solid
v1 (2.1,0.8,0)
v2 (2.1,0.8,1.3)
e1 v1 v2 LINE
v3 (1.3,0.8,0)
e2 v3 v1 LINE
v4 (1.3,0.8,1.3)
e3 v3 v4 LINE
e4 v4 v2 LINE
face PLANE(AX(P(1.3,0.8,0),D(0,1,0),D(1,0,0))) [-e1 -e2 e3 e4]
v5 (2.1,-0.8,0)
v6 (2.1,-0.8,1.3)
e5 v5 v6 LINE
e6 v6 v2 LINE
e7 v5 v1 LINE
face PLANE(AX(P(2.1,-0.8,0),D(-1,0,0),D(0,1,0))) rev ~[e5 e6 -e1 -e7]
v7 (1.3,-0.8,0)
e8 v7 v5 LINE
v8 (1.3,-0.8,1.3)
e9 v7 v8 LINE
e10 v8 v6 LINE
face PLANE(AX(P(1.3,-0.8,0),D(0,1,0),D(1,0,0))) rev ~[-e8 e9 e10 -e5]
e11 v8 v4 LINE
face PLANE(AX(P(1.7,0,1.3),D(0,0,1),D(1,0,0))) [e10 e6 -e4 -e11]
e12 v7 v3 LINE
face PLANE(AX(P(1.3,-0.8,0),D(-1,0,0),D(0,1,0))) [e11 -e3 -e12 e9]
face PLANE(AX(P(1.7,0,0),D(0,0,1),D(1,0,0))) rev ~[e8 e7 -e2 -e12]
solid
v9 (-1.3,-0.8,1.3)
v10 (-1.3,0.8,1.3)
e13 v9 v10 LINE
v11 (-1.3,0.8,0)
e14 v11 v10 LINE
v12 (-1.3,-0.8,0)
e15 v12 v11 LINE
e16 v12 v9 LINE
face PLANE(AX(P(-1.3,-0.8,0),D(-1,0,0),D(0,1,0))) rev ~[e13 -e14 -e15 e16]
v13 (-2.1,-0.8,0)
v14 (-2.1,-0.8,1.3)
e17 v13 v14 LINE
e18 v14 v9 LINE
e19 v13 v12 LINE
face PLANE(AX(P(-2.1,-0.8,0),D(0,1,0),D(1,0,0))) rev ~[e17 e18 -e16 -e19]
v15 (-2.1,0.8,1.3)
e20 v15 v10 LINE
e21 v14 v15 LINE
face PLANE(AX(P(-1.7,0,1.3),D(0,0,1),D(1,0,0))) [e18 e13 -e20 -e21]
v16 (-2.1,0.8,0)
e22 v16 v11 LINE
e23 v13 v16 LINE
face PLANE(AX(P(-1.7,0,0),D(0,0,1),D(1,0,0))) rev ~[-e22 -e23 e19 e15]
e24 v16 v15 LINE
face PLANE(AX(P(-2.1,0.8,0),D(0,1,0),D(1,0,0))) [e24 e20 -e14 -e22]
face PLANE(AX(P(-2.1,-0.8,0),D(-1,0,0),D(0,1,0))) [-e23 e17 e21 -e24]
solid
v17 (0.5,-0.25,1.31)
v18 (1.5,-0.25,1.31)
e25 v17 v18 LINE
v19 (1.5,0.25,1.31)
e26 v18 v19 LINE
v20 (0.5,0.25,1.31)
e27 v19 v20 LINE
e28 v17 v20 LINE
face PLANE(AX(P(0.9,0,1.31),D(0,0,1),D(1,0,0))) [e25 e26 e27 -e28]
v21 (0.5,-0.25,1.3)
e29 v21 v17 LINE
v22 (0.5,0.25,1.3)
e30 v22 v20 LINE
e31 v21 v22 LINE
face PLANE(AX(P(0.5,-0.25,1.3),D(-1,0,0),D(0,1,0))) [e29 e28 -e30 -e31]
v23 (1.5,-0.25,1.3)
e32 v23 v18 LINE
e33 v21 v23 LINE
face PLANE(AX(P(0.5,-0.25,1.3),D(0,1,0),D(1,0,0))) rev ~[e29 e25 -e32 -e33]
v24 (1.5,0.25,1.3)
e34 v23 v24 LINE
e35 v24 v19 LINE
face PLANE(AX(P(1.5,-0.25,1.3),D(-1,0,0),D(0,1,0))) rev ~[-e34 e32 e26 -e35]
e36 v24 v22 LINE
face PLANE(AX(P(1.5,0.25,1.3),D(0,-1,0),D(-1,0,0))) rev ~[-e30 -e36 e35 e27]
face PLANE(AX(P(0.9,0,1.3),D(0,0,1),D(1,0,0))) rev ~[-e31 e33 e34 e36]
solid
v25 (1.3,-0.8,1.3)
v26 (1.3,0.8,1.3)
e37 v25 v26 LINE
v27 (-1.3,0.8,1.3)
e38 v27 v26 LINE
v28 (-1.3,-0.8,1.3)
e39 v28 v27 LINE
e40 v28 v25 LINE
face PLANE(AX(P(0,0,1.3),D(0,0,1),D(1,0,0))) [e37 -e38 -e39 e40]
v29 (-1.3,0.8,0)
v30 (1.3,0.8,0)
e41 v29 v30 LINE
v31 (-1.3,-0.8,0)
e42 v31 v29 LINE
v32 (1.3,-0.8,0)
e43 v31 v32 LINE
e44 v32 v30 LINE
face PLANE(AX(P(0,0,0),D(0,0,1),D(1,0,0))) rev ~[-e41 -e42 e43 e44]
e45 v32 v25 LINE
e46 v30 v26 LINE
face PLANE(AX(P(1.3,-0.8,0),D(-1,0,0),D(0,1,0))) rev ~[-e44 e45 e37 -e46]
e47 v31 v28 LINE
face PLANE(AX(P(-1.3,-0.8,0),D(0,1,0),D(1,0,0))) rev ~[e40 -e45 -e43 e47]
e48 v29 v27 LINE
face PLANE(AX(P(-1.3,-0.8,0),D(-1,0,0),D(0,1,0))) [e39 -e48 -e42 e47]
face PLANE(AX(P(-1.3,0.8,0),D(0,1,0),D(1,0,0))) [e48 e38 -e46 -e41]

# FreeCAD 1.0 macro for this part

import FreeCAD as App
import Part
import Sketcher
Q = App.Units.Quantity

doc = App.newDocument("Part")
body = doc.addObject("PartDesign::Body", "Body")

# Sketch on XY plane
sketch1 = body.newObject("Sketcher::SketchObject", "Sketch")
sketch1.AttachmentSupport = (doc.getObject("XY_Plane"), [""])
sketch1.MapMode = "FlatFace"
sketch1.addGeometry(Part.LineSegment(App.Vector(1.3, 0.8, 0), App.Vector(1.3, -0.8, 0)), False)
sketch1.addGeometry(Part.LineSegment(App.Vector(1.3, -0.8, 0), App.Vector(2.1, -0.8, 0)), False)
sketch1.addGeometry(Part.LineSegment(App.Vector(2.1, -0.8, 0), App.Vector(2.1, 0.8, 0)), False)
sketch1.addGeometry(Part.LineSegment(App.Vector(2.1, 0.8, 0), App.Vector(1.3, 0.8, 0)), False)
sketch1.addConstraint(Sketcher.Constraint("Coincident", 0, 2, 1, 1))
sketch1.addConstraint(Sketcher.Constraint("Coincident", 1, 2, 2, 1))
sketch1.addConstraint(Sketcher.Constraint("Coincident", 2, 2, 3, 1))
sketch1.addConstraint(Sketcher.Constraint("Coincident", 3, 2, 0, 1))
sketch1.addConstraint(Sketcher.Constraint("Vertical", 0))
sketch1.addConstraint(Sketcher.Constraint("Horizontal", 1))
sketch1.addConstraint(Sketcher.Constraint("Vertical", 2))
sketch1.addConstraint(Sketcher.Constraint("Horizontal", 3))
sketch1.addConstraint(Sketcher.Constraint("DistanceX", 1, 1, 1, 2, Q("0.8 mm")))
sketch1.addConstraint(Sketcher.Constraint("DistanceY", 0, 2, 0, 1, Q("1.6 mm")))
sketch1.addConstraint(Sketcher.Constraint("DistanceX", -1, 1, 0, 2, Q("1.3 mm")))
sketch1.addConstraint(Sketcher.Constraint("DistanceY", 0, 2, -1, 1, Q("0.8 mm")))
pad1 = body.newObject("PartDesign::Pad", "Pad")
pad1.Profile = sketch1
pad1.Length = 1.3
body2 = doc.addObject("PartDesign::Body", "Body001")

# Sketch on XY plane
sketch2 = body2.newObject("Sketcher::SketchObject", "Sketch001")
sketch2.AttachmentSupport = (doc.getObject("XY_Plane001"), [""])
sketch2.MapMode = "FlatFace"
sketch2.addGeometry(Part.LineSegment(App.Vector(-2.1, 0.8, 0), App.Vector(-2.1, -0.8, 0)), False)
sketch2.addGeometry(Part.LineSegment(App.Vector(-2.1, -0.8, 0), App.Vector(-1.3, -0.8, 0)), False)
sketch2.addGeometry(Part.LineSegment(App.Vector(-1.3, -0.8, 0), App.Vector(-1.3, 0.8, 0)), False)
sketch2.addGeometry(Part.LineSegment(App.Vector(-1.3, 0.8, 0), App.Vector(-2.1, 0.8, 0)), False)
sketch2.addConstraint(Sketcher.Constraint("Coincident", 0, 2, 1, 1))
sketch2.addConstraint(Sketcher.Constraint("Coincident", 1, 2, 2, 1))
sketch2.addConstraint(Sketcher.Constraint("Coincident", 2, 2, 3, 1))
sketch2.addConstraint(Sketcher.Constraint("Coincident", 3, 2, 0, 1))
sketch2.addConstraint(Sketcher.Constraint("Vertical", 0))
sketch2.addConstraint(Sketcher.Constraint("Horizontal", 1))
sketch2.addConstraint(Sketcher.Constraint("Vertical", 2))
sketch2.addConstraint(Sketcher.Constraint("Horizontal", 3))
sketch2.addConstraint(Sketcher.Constraint("DistanceX", 1, 1, 1, 2, Q("0.8 mm")))
sketch2.addConstraint(Sketcher.Constraint("DistanceY", 0, 2, 0, 1, Q("1.6 mm")))
sketch2.addConstraint(Sketcher.Constraint("DistanceX", 0, 2, -1, 1, Q("2.1 mm")))
sketch2.addConstraint(Sketcher.Constraint("DistanceY", 0, 2, -1, 1, Q("0.8 mm")))
pad2 = body2.newObject("PartDesign::Pad", "Pad001")
pad2.Profile = sketch2
pad2.Length = 1.3
body3 = doc.addObject("PartDesign::Body", "Body002")

# Sketch on XY plane
sketch3 = body3.newObject("Sketcher::SketchObject", "Sketch002")
sketch3.AttachmentSupport = (doc.getObject("XY_Plane002"), [""])
sketch3.MapMode = "FlatFace"
sketch3.addGeometry(Part.LineSegment(App.Vector(-1.3, 0.8, 0), App.Vector(-1.3, -0.8, 0)), False)
sketch3.addGeometry(Part.LineSegment(App.Vector(-1.3, -0.8, 0), App.Vector(1.3, -0.8, 0)), False)
sketch3.addGeometry(Part.LineSegment(App.Vector(1.3, -0.8, 0), App.Vector(1.3, 0.8, 0)), False)
sketch3.addGeometry(Part.LineSegment(App.Vector(1.3, 0.8, 0), App.Vector(-1.3, 0.8, 0)), False)
sketch3.addConstraint(Sketcher.Constraint("Coincident", 0, 2, 1, 1))
sketch3.addConstraint(Sketcher.Constraint("Coincident", 1, 2, 2, 1))
sketch3.addConstraint(Sketcher.Constraint("Coincident", 2, 2, 3, 1))
sketch3.addConstraint(Sketcher.Constraint("Coincident", 3, 2, 0, 1))
sketch3.addConstraint(Sketcher.Constraint("Vertical", 0))
sketch3.addConstraint(Sketcher.Constraint("Horizontal", 1))
sketch3.addConstraint(Sketcher.Constraint("Vertical", 2))
sketch3.addConstraint(Sketcher.Constraint("Horizontal", 3))
sketch3.addConstraint(Sketcher.Constraint("Symmetric", 0, 2, 2, 2, -1, 1))
sketch3.addConstraint(Sketcher.Constraint("DistanceX", 1, 1, 1, 2, Q("2.6 mm")))
sketch3.addConstraint(Sketcher.Constraint("DistanceY", 0, 2, 0, 1, Q("1.6 mm")))
pad3 = body3.newObject("PartDesign::Pad", "Pad002")
pad3.Profile = sketch3
pad3.Length = 1.3
body4 = doc.addObject("PartDesign::Body", "Body003")

# Sketch on XY plane
sketch4 = body4.newObject("Sketcher::SketchObject", "Sketch003")
sketch4.AttachmentSupport = (doc.getObject("XY_Plane003"), [""])
sketch4.MapMode = "FlatFace"
sketch4.AttachmentOffset = App.Placement(App.Vector(0, 0, 1.3), App.Rotation())
sketch4.addGeometry(Part.LineSegment(App.Vector(0.5, 0.2, 0), App.Vector(0.5, -0.2, 0)), False)
sketch4.addGeometry(Part.LineSegment(App.Vector(0.5, -0.2, 0), App.Vector(1.5, -0.2, 0)), False)
sketch4.addGeometry(Part.LineSegment(App.Vector(1.5, -0.2, 0), App.Vector(1.5, 0.2, 0)), False)
sketch4.addGeometry(Part.LineSegment(App.Vector(1.5, 0.2, 0), App.Vector(0.5, 0.2, 0)), False)
sketch4.addConstraint(Sketcher.Constraint("Coincident", 0, 2, 1, 1))
sketch4.addConstraint(Sketcher.Constraint("Coincident", 1, 2, 2, 1))
sketch4.addConstraint(Sketcher.Constraint("Coincident", 2, 2, 3, 1))
sketch4.addConstraint(Sketcher.Constraint("Coincident", 3, 2, 0, 1))
sketch4.addConstraint(Sketcher.Constraint("Vertical", 0))
sketch4.addConstraint(Sketcher.Constraint("Horizontal", 1))
sketch4.addConstraint(Sketcher.Constraint("Vertical", 2))
sketch4.addConstraint(Sketcher.Constraint("Horizontal", 3))
sketch4.addConstraint(Sketcher.Constraint("DistanceX", 1, 1, 1, 2, Q("1 mm")))
sketch4.addConstraint(Sketcher.Constraint("DistanceY", 0, 2, 0, 1, Q("0.5 mm")))
sketch4.addConstraint(Sketcher.Constraint("DistanceX", -1, 1, 0, 2, Q("0.5 mm")))
sketch4.addConstraint(Sketcher.Constraint("DistanceY", 0, 2, -1, 1, Q("0.25 mm")))
pad4 = body4.newObject("PartDesign::Pad", "Pad003")
pad4.Profile = sketch4
pad4.Length = 0.01

doc.recompute()
